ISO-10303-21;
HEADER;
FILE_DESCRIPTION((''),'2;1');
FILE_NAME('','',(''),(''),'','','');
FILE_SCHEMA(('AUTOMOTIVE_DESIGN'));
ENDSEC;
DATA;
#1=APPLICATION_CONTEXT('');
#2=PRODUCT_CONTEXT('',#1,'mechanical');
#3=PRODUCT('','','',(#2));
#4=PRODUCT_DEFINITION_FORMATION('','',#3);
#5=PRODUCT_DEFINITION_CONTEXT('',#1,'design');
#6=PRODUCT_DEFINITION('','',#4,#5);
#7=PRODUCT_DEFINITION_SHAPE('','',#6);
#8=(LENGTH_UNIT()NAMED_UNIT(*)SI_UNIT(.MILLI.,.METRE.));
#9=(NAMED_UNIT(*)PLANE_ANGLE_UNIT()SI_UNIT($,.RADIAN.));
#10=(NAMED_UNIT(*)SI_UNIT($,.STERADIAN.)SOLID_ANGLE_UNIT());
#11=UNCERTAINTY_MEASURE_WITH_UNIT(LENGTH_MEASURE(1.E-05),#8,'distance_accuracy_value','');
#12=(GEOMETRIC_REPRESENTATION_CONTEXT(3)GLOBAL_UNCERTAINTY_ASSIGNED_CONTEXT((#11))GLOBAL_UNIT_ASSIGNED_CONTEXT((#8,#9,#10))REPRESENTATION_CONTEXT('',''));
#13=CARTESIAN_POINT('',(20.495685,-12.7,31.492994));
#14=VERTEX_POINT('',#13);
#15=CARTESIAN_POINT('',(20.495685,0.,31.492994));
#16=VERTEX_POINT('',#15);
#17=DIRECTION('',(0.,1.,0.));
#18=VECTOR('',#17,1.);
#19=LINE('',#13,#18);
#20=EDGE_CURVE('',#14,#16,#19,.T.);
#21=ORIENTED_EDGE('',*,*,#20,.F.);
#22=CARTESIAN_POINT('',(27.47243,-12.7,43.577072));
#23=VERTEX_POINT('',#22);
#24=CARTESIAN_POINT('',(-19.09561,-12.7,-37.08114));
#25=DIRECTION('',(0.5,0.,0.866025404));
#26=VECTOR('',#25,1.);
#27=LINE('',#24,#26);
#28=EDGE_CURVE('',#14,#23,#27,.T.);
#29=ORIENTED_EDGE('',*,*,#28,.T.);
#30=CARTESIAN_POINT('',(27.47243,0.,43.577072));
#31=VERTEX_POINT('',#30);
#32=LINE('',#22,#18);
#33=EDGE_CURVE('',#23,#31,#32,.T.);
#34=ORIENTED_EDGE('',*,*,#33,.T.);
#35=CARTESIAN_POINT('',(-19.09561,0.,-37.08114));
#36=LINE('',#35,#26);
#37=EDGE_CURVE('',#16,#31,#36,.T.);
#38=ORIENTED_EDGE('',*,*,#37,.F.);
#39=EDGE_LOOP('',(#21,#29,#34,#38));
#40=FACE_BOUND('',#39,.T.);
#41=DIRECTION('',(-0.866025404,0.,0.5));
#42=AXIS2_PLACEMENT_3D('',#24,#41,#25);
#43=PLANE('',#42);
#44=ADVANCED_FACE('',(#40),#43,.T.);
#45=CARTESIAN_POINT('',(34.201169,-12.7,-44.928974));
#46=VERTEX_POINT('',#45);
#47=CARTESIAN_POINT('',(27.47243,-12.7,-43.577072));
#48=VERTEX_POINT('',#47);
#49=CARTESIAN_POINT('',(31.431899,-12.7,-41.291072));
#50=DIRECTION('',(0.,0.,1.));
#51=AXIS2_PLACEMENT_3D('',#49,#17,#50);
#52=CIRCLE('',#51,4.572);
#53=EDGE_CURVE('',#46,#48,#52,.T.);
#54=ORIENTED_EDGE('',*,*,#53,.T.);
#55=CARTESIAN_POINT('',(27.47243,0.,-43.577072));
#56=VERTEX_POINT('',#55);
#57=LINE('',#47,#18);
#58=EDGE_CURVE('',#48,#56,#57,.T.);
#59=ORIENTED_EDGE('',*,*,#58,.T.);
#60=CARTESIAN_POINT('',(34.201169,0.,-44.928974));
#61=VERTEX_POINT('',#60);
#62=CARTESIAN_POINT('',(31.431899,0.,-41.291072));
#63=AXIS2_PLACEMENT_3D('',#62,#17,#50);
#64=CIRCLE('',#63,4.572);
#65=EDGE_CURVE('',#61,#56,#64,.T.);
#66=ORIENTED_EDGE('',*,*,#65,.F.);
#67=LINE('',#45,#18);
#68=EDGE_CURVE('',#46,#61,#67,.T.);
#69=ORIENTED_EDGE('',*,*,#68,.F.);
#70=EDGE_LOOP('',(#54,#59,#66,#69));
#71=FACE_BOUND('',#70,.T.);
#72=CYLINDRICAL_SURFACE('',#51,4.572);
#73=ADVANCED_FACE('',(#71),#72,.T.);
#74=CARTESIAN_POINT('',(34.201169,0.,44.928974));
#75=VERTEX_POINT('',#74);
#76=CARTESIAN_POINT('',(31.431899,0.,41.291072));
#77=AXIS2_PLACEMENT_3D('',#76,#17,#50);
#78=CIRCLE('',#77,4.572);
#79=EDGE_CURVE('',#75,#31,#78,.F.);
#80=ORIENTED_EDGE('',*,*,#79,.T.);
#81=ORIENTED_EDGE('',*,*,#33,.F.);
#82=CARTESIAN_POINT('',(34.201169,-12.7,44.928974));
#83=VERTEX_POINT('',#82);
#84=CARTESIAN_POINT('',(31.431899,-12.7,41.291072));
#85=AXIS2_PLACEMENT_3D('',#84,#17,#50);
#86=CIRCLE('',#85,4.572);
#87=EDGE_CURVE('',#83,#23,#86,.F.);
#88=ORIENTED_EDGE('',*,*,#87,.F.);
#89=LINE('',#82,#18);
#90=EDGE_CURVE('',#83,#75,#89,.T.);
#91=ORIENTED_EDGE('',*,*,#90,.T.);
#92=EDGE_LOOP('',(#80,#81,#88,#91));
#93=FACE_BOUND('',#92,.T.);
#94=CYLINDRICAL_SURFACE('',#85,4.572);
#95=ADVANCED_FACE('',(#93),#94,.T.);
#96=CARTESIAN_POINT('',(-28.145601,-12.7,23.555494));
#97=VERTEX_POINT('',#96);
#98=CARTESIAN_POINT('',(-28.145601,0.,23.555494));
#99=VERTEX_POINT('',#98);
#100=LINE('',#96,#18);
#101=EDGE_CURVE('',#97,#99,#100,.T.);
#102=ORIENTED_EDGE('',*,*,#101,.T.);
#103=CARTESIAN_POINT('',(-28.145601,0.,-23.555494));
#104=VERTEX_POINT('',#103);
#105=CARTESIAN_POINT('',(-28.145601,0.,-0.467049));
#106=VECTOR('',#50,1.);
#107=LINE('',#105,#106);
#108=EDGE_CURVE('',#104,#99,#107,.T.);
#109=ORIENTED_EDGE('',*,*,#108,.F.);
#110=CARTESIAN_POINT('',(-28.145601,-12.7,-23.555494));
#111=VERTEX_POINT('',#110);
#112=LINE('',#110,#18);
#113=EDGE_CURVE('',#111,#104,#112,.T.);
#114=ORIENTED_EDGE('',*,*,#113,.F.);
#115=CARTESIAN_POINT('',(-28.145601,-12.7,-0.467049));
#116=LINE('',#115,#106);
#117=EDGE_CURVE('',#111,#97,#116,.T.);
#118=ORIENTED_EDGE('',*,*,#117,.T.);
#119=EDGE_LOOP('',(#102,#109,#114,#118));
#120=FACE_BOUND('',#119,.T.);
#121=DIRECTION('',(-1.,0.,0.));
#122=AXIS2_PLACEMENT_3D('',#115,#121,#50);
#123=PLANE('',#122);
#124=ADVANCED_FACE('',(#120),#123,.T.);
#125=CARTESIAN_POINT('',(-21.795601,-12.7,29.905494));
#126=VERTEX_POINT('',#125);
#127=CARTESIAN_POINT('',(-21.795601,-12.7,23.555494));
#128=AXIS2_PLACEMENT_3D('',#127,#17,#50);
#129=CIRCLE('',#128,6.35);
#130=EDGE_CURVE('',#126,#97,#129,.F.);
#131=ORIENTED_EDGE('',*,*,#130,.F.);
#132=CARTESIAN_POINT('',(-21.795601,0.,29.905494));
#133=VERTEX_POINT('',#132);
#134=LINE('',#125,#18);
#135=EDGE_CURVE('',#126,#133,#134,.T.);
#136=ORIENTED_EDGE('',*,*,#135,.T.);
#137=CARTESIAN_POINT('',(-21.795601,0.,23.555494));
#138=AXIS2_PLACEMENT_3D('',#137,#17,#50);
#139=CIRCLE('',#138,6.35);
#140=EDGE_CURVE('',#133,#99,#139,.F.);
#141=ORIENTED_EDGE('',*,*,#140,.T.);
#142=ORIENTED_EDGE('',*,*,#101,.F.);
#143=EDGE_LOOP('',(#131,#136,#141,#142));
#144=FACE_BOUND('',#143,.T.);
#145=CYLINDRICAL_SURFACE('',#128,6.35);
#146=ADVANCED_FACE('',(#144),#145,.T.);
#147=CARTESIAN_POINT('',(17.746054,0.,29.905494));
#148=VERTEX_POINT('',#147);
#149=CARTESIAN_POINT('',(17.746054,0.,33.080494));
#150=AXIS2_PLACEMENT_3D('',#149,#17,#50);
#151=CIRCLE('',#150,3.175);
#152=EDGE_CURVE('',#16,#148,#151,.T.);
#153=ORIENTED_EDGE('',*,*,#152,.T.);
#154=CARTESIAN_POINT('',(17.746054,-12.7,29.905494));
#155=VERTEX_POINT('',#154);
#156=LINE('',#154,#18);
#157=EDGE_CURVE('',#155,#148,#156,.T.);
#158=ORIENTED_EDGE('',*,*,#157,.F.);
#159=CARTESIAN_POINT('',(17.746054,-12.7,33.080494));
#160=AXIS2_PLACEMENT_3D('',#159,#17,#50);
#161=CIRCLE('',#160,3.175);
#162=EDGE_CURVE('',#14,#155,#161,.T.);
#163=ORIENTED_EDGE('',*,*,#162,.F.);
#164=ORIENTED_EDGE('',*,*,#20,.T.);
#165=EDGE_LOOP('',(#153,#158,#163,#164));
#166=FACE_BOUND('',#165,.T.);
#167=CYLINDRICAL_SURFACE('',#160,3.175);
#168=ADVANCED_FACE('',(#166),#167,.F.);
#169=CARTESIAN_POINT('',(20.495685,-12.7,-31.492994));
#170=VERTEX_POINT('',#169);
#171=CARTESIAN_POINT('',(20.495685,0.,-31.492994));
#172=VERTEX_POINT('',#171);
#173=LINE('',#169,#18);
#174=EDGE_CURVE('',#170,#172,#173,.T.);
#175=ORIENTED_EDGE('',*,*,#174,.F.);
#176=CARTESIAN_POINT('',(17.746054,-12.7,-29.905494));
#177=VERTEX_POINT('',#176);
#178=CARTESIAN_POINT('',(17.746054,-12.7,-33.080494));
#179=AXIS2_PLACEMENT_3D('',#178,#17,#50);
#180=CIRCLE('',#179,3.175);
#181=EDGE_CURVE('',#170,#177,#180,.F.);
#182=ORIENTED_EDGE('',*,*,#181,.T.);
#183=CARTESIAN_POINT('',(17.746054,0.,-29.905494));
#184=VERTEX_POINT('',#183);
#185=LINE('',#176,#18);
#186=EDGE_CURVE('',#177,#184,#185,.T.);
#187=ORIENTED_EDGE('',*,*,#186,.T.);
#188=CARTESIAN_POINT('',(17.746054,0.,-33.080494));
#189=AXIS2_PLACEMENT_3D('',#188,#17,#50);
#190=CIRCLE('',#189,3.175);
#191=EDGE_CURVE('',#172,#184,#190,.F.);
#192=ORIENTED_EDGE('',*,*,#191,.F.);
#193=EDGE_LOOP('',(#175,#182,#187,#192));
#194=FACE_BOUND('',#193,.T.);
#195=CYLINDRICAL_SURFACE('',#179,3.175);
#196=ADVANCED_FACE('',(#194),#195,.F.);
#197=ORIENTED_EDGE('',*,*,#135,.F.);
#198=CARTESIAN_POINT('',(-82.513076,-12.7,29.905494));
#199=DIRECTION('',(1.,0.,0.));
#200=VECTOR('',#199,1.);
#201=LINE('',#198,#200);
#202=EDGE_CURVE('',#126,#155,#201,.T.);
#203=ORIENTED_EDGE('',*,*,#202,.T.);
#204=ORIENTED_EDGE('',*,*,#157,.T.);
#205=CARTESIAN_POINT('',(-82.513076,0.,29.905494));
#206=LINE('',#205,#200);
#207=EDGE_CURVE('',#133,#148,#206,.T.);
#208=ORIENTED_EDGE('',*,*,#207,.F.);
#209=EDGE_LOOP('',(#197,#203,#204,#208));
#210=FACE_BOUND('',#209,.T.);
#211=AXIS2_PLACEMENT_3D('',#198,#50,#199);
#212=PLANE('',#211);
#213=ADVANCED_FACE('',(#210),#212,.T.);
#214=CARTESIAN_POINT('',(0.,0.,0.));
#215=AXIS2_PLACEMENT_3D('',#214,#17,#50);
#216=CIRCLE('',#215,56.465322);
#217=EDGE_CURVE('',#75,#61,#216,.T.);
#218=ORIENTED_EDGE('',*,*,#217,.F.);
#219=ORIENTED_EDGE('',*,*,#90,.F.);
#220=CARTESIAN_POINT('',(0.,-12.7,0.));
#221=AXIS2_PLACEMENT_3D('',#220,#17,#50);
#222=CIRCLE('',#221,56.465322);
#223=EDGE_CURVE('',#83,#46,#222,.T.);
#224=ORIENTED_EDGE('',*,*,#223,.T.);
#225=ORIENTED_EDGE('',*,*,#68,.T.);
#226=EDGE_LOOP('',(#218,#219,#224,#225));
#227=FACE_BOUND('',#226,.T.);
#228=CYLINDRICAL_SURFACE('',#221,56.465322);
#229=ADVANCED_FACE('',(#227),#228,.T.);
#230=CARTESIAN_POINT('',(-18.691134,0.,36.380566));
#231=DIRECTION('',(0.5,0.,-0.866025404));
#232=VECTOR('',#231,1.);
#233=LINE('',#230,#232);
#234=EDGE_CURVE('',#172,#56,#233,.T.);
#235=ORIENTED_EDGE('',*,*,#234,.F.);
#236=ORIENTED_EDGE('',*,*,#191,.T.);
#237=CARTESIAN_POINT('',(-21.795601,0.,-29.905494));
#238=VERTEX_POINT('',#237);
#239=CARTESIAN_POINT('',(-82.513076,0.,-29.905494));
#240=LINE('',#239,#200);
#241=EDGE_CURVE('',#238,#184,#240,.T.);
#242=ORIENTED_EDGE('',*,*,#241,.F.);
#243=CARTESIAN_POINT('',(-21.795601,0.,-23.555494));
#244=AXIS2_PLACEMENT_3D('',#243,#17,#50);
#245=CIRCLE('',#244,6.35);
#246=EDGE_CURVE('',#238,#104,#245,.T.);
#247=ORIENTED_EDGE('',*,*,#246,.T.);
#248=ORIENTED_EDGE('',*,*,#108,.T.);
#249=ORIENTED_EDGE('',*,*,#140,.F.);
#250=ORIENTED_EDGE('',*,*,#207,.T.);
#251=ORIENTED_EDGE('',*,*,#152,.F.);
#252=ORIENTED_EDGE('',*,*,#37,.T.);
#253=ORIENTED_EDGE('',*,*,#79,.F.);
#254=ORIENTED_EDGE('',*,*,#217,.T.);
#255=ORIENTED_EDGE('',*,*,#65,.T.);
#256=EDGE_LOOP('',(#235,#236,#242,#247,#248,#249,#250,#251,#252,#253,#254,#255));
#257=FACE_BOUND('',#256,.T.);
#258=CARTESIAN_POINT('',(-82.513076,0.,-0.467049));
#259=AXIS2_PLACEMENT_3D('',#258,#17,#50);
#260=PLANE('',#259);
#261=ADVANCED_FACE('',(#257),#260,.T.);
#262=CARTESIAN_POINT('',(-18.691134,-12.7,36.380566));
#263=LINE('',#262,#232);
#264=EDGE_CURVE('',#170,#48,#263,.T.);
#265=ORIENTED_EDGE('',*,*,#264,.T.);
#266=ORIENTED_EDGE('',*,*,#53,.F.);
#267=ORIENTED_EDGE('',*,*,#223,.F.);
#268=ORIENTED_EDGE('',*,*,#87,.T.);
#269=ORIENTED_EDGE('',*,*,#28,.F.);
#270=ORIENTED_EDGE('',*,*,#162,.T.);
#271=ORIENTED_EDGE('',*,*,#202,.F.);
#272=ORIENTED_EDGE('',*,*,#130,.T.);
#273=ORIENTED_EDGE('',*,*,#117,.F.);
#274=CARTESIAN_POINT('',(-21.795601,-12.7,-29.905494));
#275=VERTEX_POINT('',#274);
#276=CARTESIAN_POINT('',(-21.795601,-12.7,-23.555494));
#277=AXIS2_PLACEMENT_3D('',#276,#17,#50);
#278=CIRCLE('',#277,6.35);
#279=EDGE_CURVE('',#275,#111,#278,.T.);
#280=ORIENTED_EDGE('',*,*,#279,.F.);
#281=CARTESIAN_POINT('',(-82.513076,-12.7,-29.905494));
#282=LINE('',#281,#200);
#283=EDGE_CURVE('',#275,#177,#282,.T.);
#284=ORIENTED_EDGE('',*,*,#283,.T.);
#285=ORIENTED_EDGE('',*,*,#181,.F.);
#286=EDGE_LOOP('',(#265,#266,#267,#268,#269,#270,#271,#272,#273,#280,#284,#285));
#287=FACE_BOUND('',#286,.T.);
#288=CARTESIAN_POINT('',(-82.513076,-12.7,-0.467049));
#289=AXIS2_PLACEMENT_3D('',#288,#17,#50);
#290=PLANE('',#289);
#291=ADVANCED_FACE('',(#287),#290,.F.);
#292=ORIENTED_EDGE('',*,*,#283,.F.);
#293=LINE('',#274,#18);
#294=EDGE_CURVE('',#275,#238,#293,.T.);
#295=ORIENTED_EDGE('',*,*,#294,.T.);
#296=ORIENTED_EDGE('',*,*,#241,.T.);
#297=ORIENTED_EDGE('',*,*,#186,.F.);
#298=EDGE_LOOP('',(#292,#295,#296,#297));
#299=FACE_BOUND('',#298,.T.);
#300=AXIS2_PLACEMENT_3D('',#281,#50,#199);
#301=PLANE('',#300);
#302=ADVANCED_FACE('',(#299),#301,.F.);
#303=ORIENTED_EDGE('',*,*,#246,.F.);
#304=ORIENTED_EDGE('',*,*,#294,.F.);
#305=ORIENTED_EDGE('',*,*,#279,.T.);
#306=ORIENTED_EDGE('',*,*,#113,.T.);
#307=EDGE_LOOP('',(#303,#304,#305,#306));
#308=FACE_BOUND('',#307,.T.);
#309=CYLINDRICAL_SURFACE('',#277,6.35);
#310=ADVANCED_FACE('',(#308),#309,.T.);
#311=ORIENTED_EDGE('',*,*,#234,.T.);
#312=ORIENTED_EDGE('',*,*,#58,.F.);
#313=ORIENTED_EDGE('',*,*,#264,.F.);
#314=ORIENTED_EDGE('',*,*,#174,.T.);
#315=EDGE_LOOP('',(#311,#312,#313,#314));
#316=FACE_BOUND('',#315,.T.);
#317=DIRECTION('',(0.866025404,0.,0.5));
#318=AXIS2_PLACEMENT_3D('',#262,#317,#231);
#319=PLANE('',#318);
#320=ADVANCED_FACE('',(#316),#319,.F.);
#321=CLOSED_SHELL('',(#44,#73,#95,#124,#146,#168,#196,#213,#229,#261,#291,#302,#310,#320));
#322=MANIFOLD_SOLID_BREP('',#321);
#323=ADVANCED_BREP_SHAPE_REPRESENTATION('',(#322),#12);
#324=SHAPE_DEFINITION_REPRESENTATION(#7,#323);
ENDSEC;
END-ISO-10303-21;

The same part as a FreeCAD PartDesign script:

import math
import FreeCAD as App
import Part
import Sketcher
from FreeCAD import Vector
Q = App.Units.Quantity

doc = App.newDocument("Part")
body = doc.addObject("PartDesign::Body", "Body")

# Sketch on XZ plane
sketch1 = body.newObject("Sketcher::SketchObject", "Sketch")
sketch1.AttachmentSupport = (doc.getObject("XZ_Plane"), [""])
sketch1.MapMode = "FlatFace"
sketch1.addGeometry([
    Part.LineSegment(Vector(27.5, -43.6, 0), Vector(20.5, -31.5, 0)),  # 0
    Part.ArcOfCircle(Part.Circle(Vector(17.7, -33.1, 0), Vector(0, 0, 1), 3.2), math.radians(30), math.radians(90)),  # 1
    Part.LineSegment(Vector(17.7, -29.9, 0), Vector(-21.8, -29.9, 0)),  # 2
    Part.ArcOfCircle(Part.Circle(Vector(-21.8, -23.6, 0), Vector(0, 0, 1), 6.4), math.radians(-180), math.radians(-90)),  # 3
    Part.LineSegment(Vector(-28.1, -23.6, 0), Vector(-28.1, 23.6, 0)),  # 4
    Part.ArcOfCircle(Part.Circle(Vector(-21.8, 23.6, 0), Vector(0, 0, 1), 6.4), math.radians(90), math.radians(180)),  # 5
    Part.LineSegment(Vector(-21.8, 29.9, 0), Vector(17.7, 29.9, 0)),  # 6
    Part.ArcOfCircle(Part.Circle(Vector(17.7, 33.1, 0), Vector(0, 0, 1), 3.2), math.radians(-90), math.radians(-30)),  # 7
    Part.LineSegment(Vector(20.5, 31.5, 0), Vector(27.5, 43.6, 0)),  # 8
    Part.ArcOfCircle(Part.Circle(Vector(31.4, 41.3, 0), Vector(0, 0, 1), 4.6), math.radians(53), math.radians(150)),  # 9
    Part.ArcOfCircle(Part.Circle(Vector(0, 0, 0), Vector(0, 0, 1), 56.5), math.radians(-53), math.radians(53)),  # 10
    Part.ArcOfCircle(Part.Circle(Vector(31.4, -41.3, 0), Vector(0, 0, 1), 4.6), math.radians(-150), math.radians(-53)),  # 11
], False)
sketch1.addConstraint([
    Sketcher.Constraint("Tangent", 0, 2, 1, 1),
    Sketcher.Constraint("Tangent", 1, 2, 2, 1),
    Sketcher.Constraint("Tangent", 2, 2, 3, 2),
    Sketcher.Constraint("Tangent", 3, 1, 4, 1),
    Sketcher.Constraint("Tangent", 4, 2, 5, 2),
    Sketcher.Constraint("Tangent", 5, 1, 6, 1),
    Sketcher.Constraint("Tangent", 6, 2, 7, 1),
    Sketcher.Constraint("Tangent", 7, 2, 8, 1),
    Sketcher.Constraint("Tangent", 8, 2, 9, 2),
    Sketcher.Constraint("Tangent", 9, 1, 10, 2),
    Sketcher.Constraint("Tangent", 10, 1, 11, 2),
    Sketcher.Constraint("Tangent", 11, 1, 0, 1),
    Sketcher.Constraint("Horizontal", 2),
    Sketcher.Constraint("Vertical", 4),
    Sketcher.Constraint("Horizontal", 6),
    Sketcher.Constraint("Coincident", 10, 3, -1, 1),
    Sketcher.Constraint("Equal", 3, 5),
    Sketcher.Constraint("Equal", 1, 7),
    Sketcher.Constraint("Equal", 9, 11),
    Sketcher.Constraint("Symmetric", 1, 3, 7, 3, -1),
    Sketcher.Constraint("Vertical", 9, 3, 11, 3),
    Sketcher.Constraint("Radius", 3, Q("0.25 in")),
    Sketcher.Constraint("Radius", 9, Q("0.18 in")),
    Sketcher.Constraint("Angle", 0, Q("120 deg")),
    Sketcher.Constraint("Radius", 1, Q("0.125 in")),
    Sketcher.Constraint("Radius", 10, 56.465322),
    Sketcher.Constraint("DistanceY", 4, 1, 4, 2, 47.110989),
    Sketcher.Constraint("DistanceX", 3, 3, -1, 1, 21.795601),
    Sketcher.Constraint("DistanceX", -1, 1, 9, 3, 31.431899),
])
pad1 = body.newObject("PartDesign::Pad", "Pad")
pad1.Profile = sketch1
pad1.Length = Q("0.5 in")

doc.recompute()
